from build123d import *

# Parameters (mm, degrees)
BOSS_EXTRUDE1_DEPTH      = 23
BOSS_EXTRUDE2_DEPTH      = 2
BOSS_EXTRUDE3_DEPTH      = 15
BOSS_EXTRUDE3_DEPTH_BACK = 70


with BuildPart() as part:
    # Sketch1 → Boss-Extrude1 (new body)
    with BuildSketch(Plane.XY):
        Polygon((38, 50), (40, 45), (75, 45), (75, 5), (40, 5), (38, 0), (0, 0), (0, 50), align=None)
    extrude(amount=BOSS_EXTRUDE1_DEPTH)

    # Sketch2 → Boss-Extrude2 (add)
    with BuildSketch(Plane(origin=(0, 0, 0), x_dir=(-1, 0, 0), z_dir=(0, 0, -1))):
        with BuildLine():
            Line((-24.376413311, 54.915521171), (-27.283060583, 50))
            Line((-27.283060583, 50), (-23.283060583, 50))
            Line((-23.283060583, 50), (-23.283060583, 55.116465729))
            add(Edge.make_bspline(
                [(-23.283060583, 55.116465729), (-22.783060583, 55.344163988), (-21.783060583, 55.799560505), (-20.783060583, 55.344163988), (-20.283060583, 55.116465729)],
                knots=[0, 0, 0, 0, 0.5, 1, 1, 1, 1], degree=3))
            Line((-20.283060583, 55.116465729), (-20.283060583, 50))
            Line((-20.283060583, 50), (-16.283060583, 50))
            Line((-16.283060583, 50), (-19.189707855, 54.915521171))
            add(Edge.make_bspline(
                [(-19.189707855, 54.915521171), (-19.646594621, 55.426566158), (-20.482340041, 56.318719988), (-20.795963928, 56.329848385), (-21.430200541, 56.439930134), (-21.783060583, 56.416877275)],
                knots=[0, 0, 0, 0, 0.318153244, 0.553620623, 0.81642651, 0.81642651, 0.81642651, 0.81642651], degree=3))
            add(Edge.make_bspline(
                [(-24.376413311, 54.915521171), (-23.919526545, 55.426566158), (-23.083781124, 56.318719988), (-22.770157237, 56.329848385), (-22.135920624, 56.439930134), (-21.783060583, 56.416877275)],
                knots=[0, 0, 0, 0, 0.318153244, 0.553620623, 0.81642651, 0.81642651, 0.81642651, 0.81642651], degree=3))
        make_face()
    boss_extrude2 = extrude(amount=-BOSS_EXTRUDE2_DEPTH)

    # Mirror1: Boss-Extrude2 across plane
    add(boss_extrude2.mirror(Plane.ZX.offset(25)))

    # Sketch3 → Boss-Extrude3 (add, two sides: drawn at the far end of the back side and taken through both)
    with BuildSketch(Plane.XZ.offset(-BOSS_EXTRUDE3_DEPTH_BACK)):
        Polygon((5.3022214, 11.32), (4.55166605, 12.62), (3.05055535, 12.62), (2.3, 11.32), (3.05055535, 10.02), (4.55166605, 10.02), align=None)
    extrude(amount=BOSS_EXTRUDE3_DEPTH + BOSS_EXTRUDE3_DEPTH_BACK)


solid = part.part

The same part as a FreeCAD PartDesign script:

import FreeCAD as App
import Part
import Sketcher
from FreeCAD import Vector
Q = App.Units.Quantity


def add_polygon(sketch, points):
    """Adds a closed chain of lines whose ends are joined by coincident constraints."""
    first, n = sketch.GeometryCount, len(points)
    for a, b in zip(points, points[1:] + points[:1]):
        sketch.addGeometry(Part.LineSegment(App.Vector(*a, 0), App.Vector(*b, 0)), False)
    for i in range(n):
        sketch.addConstraint(Sketcher.Constraint("Coincident", first + i, 2, first + (i + 1) % n, 1))

doc = App.newDocument("Part")
body = doc.addObject("PartDesign::Body", "Body")

sketch1 = body.newObject("Sketcher::SketchObject", "Sketch")
sketch1.AttachmentSupport = (doc.getObject("XY_Plane"), [""])
sketch1.MapMode = "FlatFace"
add_polygon(sketch1, [(40, 45), (38, 50), (0, 50), (0, 0), (38, 0), (40, 5), (75, 5), (75, 45)])
sketch1.addConstraint([
    Sketcher.Constraint("Horizontal", 1),
    Sketcher.Constraint("Vertical", 2),
    Sketcher.Constraint("Horizontal", 3),
    Sketcher.Constraint("Horizontal", 5),
    Sketcher.Constraint("Vertical", 6),
    Sketcher.Constraint("Horizontal", 7),
    Sketcher.Constraint("Coincident", 2, 2, -1, 1),
    Sketcher.Constraint("Vertical", 0, 2, 3, 2),
    Sketcher.Constraint("Vertical", 4, 2, 7, 2),
    Sketcher.Constraint("Equal", 0, 4),
    Sketcher.Constraint("DistanceX", 1, 2, 1, 1, 38.0),
    Sketcher.Constraint("DistanceX", 5, 1, 5, 2, 35.0),
    Sketcher.Constraint("DistanceY", 2, 2, 2, 1, 50.0),
    Sketcher.Constraint("DistanceY", 6, 1, 6, 2, 40.0),
    Sketcher.Constraint("DistanceX", -1, 1, 4, 2, 40.0),
])
pad1 = body.newObject("PartDesign::Pad", "Pad")
pad1.Profile = sketch1
pad1.Length = 23

sketch2 = body.newObject("Sketcher::SketchObject", "Sketch001")
sketch2.AttachmentSupport = (doc.getObject("XY_Plane"), [""])
sketch2.MapMode = "FlatFace"
sketch2.addGeometry([
    Part.LineSegment(Vector(24.376413, 54.915521, 0), Vector(27.283061, 50, 0)),
    Part.LineSegment(Vector(27.283061, 50, 0), Vector(23.283061, 50, 0)),
    Part.LineSegment(Vector(23.283061, 50, 0), Vector(23.283061, 55.116466, 0)),
    Part.BSplineCurve([Vector(23.283061, 55.116466, 0), Vector(22.783061, 55.344164, 0), Vector(21.783061, 55.799561, 0), Vector(20.783061, 55.344164, 0), Vector(20.283061, 55.116466, 0)], [4, 1, 4], [0, 0.5, 1], False, 3, [1, 1, 1, 1, 1], False),
    Part.LineSegment(Vector(20.283061, 55.116466, 0), Vector(20.283061, 50, 0)),
    Part.LineSegment(Vector(20.283061, 50, 0), Vector(16.283061, 50, 0)),
    Part.LineSegment(Vector(16.283061, 50, 0), Vector(19.189708, 54.915521, 0)),
    Part.BSplineCurve([Vector(19.189708, 54.915521, 0), Vector(19.646595, 55.426566, 0), Vector(20.48234, 56.31872, 0), Vector(20.795964, 56.329848, 0), Vector(21.430201, 56.43993, 0), Vector(21.783061, 56.416877, 0)], [4, 1, 1, 4], [0, 0.318153244, 0.553620623, 0.81642651], False, 3, [1, 1, 1, 1, 1, 1], False),
    Part.BSplineCurve([Vector(24.376413, 54.915521, 0), Vector(23.919527, 55.426566, 0), Vector(23.083781, 56.31872, 0), Vector(22.770157, 56.329848, 0), Vector(22.135921, 56.43993, 0), Vector(21.783061, 56.416877, 0)], [4, 1, 1, 4], [0, 0.318153244, 0.553620623, 0.81642651], False, 3, [1, 1, 1, 1, 1, 1], False),
], False)
sketch2.addConstraint([
    Sketcher.Constraint("Block", 3),
    Sketcher.Constraint("Block", 7),
    Sketcher.Constraint("Block", 8),
    Sketcher.Constraint("Coincident", 0, 2, 1, 1),
    Sketcher.Constraint("Coincident", 1, 2, 2, 1),
    Sketcher.Constraint("Coincident", 2, 2, 3, 1),
    Sketcher.Constraint("Coincident", 3, 2, 4, 1),
    Sketcher.Constraint("Coincident", 4, 2, 5, 1),
    Sketcher.Constraint("Coincident", 5, 2, 6, 1),
    Sketcher.Constraint("Coincident", 6, 2, 7, 1),
    Sketcher.Constraint("Coincident", 8, 1, 0, 1),
    Sketcher.Constraint("Horizontal", 1),
    Sketcher.Constraint("Vertical", 2),
    Sketcher.Constraint("Vertical", 4),
    Sketcher.Constraint("Horizontal", 5),
    Sketcher.Constraint("Horizontal", 1, 2, 4, 2),
    Sketcher.Constraint("Equal", 1, 5),
    Sketcher.Constraint("DistanceX", 1, 2, 1, 1, 4.0),
    Sketcher.Constraint("DistanceY", -1, 1, 0, 2, 50.0),
])
pad2 = body.newObject("PartDesign::Pad", "Pad001")
pad2.Profile = sketch2
pad2.Length = 2
doc.recompute()

datumplane = body.newObject("PartDesign::Plane", "DatumPlane")
datumplane.AttachmentSupport = (doc.getObject("XZ_Plane"), [""])
datumplane.MapMode = "FlatFace"
datumplane.AttachmentOffset = App.Placement(Vector(0, 0, -25), App.Rotation())
mirrored = body.newObject("PartDesign::Mirrored", "Mirrored")
mirrored.Originals = [pad2]
mirrored.MirrorPlane = (datumplane, [""])
body.Tip = mirrored

sketch3 = body.newObject("Sketcher::SketchObject", "Sketch002")
sketch3.AttachmentSupport = (doc.getObject("XZ_Plane"), [""])
sketch3.MapMode = "FlatFace"
add_polygon(sketch3, [(5.3, 11.3), (4.6, 12.6), (3.1, 12.6), (2.3, 11.3), (3.1, 10), (4.6, 10)])
sketch3.addConstraint([
    Sketcher.Constraint("Horizontal", 1),
    Sketcher.Constraint("Horizontal", 4),
    Sketcher.Constraint("Parallel", 0, 3),
    Sketcher.Constraint("Parallel", 2, 5),
    Sketcher.Constraint("Horizontal", 2, 2, 5, 2),
    Sketcher.Constraint("Vertical", 1, 2, 3, 2),
    Sketcher.Constraint("Vertical", 0, 2, 4, 2),
    Sketcher.Constraint("Angle", 0, Q("120 deg")),
    Sketcher.Constraint("DistanceX", -1, 1, 2, 2, 2.3),
    Sketcher.Constraint("DistanceY", 2, 2, 1, 2, 1.3),
    Sketcher.Constraint("DistanceY", -1, 1, 0, 2, 12.62),
    Sketcher.Constraint("DistanceX", 1, 2, 1, 1, 1.501111),
])
pad3 = body.newObject("PartDesign::Pad", "Pad002")
pad3.Profile = sketch3
pad3.Type = "TwoLengths"
pad3.Length = 15
pad3.Length2 = 70

doc.recompute()
